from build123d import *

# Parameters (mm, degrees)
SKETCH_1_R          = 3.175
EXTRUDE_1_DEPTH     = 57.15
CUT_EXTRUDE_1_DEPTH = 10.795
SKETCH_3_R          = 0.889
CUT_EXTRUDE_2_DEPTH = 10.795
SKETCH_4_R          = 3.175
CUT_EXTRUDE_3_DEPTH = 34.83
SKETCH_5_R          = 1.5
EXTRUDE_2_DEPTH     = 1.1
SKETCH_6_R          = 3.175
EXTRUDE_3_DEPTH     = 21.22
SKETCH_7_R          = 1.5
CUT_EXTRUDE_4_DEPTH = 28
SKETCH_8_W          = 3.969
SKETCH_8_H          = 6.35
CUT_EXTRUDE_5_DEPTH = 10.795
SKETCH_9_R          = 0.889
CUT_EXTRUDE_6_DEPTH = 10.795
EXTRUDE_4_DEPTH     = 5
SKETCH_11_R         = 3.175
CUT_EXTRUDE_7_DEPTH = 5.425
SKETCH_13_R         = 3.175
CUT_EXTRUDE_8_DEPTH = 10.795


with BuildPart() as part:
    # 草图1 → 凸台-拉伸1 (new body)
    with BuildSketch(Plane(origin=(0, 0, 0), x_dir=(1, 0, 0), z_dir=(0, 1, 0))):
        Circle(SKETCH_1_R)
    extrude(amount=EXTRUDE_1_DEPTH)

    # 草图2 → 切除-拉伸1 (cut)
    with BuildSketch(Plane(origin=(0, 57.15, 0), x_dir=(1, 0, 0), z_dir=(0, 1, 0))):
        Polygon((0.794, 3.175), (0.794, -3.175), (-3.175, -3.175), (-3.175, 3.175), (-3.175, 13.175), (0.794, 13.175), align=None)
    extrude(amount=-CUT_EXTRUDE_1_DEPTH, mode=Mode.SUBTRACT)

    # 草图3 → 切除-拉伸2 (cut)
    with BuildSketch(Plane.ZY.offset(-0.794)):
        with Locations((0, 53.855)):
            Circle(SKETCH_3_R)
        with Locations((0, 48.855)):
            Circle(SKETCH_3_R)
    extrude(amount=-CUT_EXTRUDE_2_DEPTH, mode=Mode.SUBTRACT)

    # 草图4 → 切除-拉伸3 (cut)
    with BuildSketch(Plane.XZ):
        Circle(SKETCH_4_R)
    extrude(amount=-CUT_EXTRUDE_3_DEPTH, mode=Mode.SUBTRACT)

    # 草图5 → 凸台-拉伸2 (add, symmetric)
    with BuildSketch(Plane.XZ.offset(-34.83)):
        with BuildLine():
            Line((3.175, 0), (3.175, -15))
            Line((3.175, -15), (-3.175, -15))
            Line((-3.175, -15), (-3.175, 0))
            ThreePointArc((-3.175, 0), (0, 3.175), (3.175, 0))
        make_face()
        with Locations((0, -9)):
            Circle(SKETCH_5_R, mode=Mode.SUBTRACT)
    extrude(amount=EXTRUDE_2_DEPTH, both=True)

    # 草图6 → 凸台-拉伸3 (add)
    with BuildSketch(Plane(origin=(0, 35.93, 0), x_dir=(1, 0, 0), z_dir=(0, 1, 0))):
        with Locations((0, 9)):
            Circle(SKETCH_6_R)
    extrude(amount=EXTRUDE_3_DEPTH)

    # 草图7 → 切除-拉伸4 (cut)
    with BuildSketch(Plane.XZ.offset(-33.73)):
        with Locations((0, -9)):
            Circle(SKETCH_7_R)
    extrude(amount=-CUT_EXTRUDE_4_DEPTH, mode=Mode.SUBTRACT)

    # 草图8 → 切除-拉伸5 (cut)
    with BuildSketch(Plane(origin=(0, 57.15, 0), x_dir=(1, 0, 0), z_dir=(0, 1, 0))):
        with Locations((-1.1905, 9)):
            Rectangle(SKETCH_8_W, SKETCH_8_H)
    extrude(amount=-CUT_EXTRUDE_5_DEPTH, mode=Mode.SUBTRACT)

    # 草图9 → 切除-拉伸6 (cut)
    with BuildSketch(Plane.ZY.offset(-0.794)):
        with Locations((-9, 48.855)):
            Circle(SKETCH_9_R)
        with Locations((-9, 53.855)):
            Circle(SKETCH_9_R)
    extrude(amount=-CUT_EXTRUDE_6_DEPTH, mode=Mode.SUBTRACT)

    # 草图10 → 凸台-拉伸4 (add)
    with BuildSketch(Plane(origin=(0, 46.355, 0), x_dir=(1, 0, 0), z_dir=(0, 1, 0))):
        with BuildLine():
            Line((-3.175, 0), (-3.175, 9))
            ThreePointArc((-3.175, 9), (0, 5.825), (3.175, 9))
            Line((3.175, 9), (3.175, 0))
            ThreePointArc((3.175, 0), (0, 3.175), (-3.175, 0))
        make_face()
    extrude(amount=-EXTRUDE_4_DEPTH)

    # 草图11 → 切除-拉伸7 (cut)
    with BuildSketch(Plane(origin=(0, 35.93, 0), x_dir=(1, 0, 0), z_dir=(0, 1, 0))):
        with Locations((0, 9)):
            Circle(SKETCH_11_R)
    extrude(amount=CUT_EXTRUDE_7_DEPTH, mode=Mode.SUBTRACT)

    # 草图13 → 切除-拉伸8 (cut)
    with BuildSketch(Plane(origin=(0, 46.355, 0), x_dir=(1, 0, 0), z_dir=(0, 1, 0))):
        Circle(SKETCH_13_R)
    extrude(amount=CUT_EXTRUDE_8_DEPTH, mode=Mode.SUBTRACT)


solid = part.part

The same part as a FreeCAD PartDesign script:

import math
import FreeCAD as App
import Part
import Sketcher
Q = App.Units.Quantity


def add_polygon(sketch, points):
    """Adds a closed chain of lines whose ends are joined by coincident constraints."""
    first, n = sketch.GeometryCount, len(points)
    for a, b in zip(points, points[1:] + points[:1]):
        sketch.addGeometry(Part.LineSegment(App.Vector(*a, 0), App.Vector(*b, 0)), False)
    for i in range(n):
        sketch.addConstraint(Sketcher.Constraint("Coincident", first + i, 2, first + (i + 1) % n, 1))

doc = App.newDocument("Part")
body = doc.addObject("PartDesign::Body", "Body")

sketch1 = body.newObject("Sketcher::SketchObject", "Sketch")
sketch1.AttachmentSupport = (doc.getObject("XZ_Plane"), [""])
sketch1.MapMode = "FlatFace"
sketch1.addGeometry(Part.Circle(App.Vector(0, 0, 0), App.Vector(0, 0, 1), 3.2), False)
sketch1.addConstraint([
    Sketcher.Constraint("Coincident", 0, 3, -1, 1),
    Sketcher.Constraint("Diameter", 0, Q("6.35 mm")),
])
pad1 = body.newObject("PartDesign::Pad", "Pad")
pad1.Profile = sketch1
pad1.Length = 57.15
pad1.Reversed = True

sketch2 = body.newObject("Sketcher::SketchObject", "Sketch001")
sketch2.AttachmentSupport = (doc.getObject("XZ_Plane"), [""])
sketch2.MapMode = "FlatFace"
sketch2.AttachmentOffset = App.Placement(App.Vector(0, 0, -57.15), App.Rotation())
add_polygon(sketch2, [(0.8, 3.2), (0.8, -13.2), (-3.2, -13.2), (-3.2, 3.2)])
sketch2.addConstraint([
    Sketcher.Constraint("Vertical", 0),
    Sketcher.Constraint("Horizontal", 1),
    Sketcher.Constraint("Vertical", 2),
    Sketcher.Constraint("Horizontal", 3),
    Sketcher.Constraint("DistanceY", 0, 2, 0, 1, Q("16.35 mm")),
    Sketcher.Constraint("DistanceX", 1, 2, 1, 1, Q("3.969 mm")),
    Sketcher.Constraint("DistanceX", -1, 1, 0, 2, Q("0.794 mm")),
    Sketcher.Constraint("DistanceY", 0, 2, -1, 1, Q("13.175 mm")),
])
pocket1 = body.newObject("PartDesign::Pocket", "Pocket")
pocket1.Profile = sketch2
pocket1.Length = 10.795
pocket1.Reversed = True

sketch3 = body.newObject("Sketcher::SketchObject", "Sketch002")
sketch3.AttachmentSupport = (doc.getObject("YZ_Plane"), [""])
sketch3.MapMode = "FlatFace"
sketch3.AttachmentOffset = App.Placement(App.Vector(0, 0, 0.794), App.Rotation())
sketch3.addGeometry([
    Part.Circle(App.Vector(53.9, 0, 0), App.Vector(0, 0, 1), 0.9),
    Part.Circle(App.Vector(48.9, 0, 0), App.Vector(0, 0, 1), 0.9),
], False)
sketch3.addConstraint([
    Sketcher.Constraint("Equal", 0, 1),
    Sketcher.Constraint("PointOnObject", 0, 3, -1),
    Sketcher.Constraint("PointOnObject", 1, 3, -1),
    Sketcher.Constraint("Diameter", 0, Q("1.778 mm")),
    Sketcher.Constraint("DistanceX", 1, 3, 0, 3, Q("5 mm")),
    Sketcher.Constraint("DistanceX", -1, 1, 0, 3, Q("53.855 mm")),
])
pocket2 = body.newObject("PartDesign::Pocket", "Pocket001")
pocket2.Profile = sketch3
pocket2.Length = 10.795
pocket2.Reversed = True

sketch4 = body.newObject("Sketcher::SketchObject", "Sketch003")
sketch4.AttachmentSupport = (doc.getObject("XZ_Plane"), [""])
sketch4.MapMode = "FlatFace"
sketch4.addGeometry(Part.Circle(App.Vector(0, 0, 0), App.Vector(0, 0, 1), 3.2), False)
sketch4.addConstraint([
    Sketcher.Constraint("Coincident", 0, 3, -1, 1),
    Sketcher.Constraint("Diameter", 0, Q("6.35 mm")),
])
pocket3 = body.newObject("PartDesign::Pocket", "Pocket002")
pocket3.Profile = sketch4
pocket3.Length = 34.83

sketch5 = body.newObject("Sketcher::SketchObject", "Sketch004")
sketch5.AttachmentSupport = (doc.getObject("XZ_Plane"), [""])
sketch5.MapMode = "FlatFace"
sketch5.AttachmentOffset = App.Placement(App.Vector(0, 0, -34.83), App.Rotation())
sketch5.addGeometry([
    Part.LineSegment(App.Vector(3.2, -15, 0), App.Vector(3.2, 0, 0)),
    Part.ArcOfCircle(Part.Circle(App.Vector(0, 0, 0), App.Vector(0, 0, 1), 3.2), math.radians(0), math.radians(180)),
    Part.LineSegment(App.Vector(-3.2, 0, 0), App.Vector(-3.2, -15, 0)),
    Part.LineSegment(App.Vector(-3.2, -15, 0), App.Vector(3.2, -15, 0)),
    Part.Circle(App.Vector(0, -9, 0), App.Vector(0, 0, 1), 1.5),
], False)
sketch5.addConstraint([
    Sketcher.Constraint("Tangent", 0, 2, 1, 1),
    Sketcher.Constraint("Tangent", 1, 2, 2, 1),
    Sketcher.Constraint("Coincident", 2, 2, 3, 1),
    Sketcher.Constraint("Coincident", 3, 2, 0, 1),
    Sketcher.Constraint("Vertical", 0),
    Sketcher.Constraint("Vertical", 2),
    Sketcher.Constraint("Horizontal", 3),
    Sketcher.Constraint("Coincident", 1, 3, -1, 1),
    Sketcher.Constraint("PointOnObject", 4, 3, -2),
    Sketcher.Constraint("Diameter", 4, Q("3 mm")),
    Sketcher.Constraint("DistanceY", 0, 1, 0, 2, Q("15 mm")),
    Sketcher.Constraint("DistanceY", 4, 3, -1, 1, Q("9 mm")),
    Sketcher.Constraint("Radius", 1, Q("3.175 mm")),
])
pad2 = body.newObject("PartDesign::Pad", "Pad001")
pad2.Profile = sketch5
pad2.Length = 2.2
pad2.Midplane = True

sketch6 = body.newObject("Sketcher::SketchObject", "Sketch005")
sketch6.AttachmentSupport = (doc.getObject("XZ_Plane"), [""])
sketch6.MapMode = "FlatFace"
sketch6.AttachmentOffset = App.Placement(App.Vector(0, 0, -35.93), App.Rotation())
sketch6.addGeometry(Part.Circle(App.Vector(0, -9, 0), App.Vector(0, 0, 1), 3.2), False)
sketch6.addConstraint([
    Sketcher.Constraint("PointOnObject", 0, 3, -2),
    Sketcher.Constraint("Diameter", 0, Q("6.35 mm")),
    Sketcher.Constraint("DistanceY", 0, 3, -1, 1, Q("9 mm")),
])
pad3 = body.newObject("PartDesign::Pad", "Pad002")
pad3.Profile = sketch6
pad3.Length = 21.22
pad3.Reversed = True

sketch7 = body.newObject("Sketcher::SketchObject", "Sketch006")
sketch7.AttachmentSupport = (doc.getObject("XZ_Plane"), [""])
sketch7.MapMode = "FlatFace"
sketch7.AttachmentOffset = App.Placement(App.Vector(0, 0, -33.73), App.Rotation())
sketch7.addGeometry(Part.Circle(App.Vector(0, -9, 0), App.Vector(0, 0, 1), 1.5), False)
sketch7.addConstraint([
    Sketcher.Constraint("PointOnObject", 0, 3, -2),
    Sketcher.Constraint("Diameter", 0, Q("3 mm")),
    Sketcher.Constraint("DistanceY", 0, 3, -1, 1, Q("9 mm")),
])
pocket4 = body.newObject("PartDesign::Pocket", "Pocket003")
pocket4.Profile = sketch7
pocket4.Length = 28

sketch8 = body.newObject("Sketcher::SketchObject", "Sketch007")
sketch8.AttachmentSupport = (doc.getObject("XZ_Plane"), [""])
sketch8.MapMode = "FlatFace"
sketch8.AttachmentOffset = App.Placement(App.Vector(0, 0, -57.15), App.Rotation())
add_polygon(sketch8, [(-3.2, -12.2), (-3.2, -5.8), (0.8, -5.8), (0.8, -12.2)])
sketch8.addConstraint([
    Sketcher.Constraint("Vertical", 0),
    Sketcher.Constraint("Horizontal", 1),
    Sketcher.Constraint("Vertical", 2),
    Sketcher.Constraint("Horizontal", 3),
    Sketcher.Constraint("DistanceY", 0, 1, 0, 2, Q("6.35 mm")),
    Sketcher.Constraint("DistanceX", 1, 1, 1, 2, Q("3.969 mm")),
    Sketcher.Constraint("DistanceX", 0, 2, -1, 1, Q("3.175 mm")),
    Sketcher.Constraint("DistanceY", 0, 2, -1, 1, Q("5.825 mm")),
])
pocket5 = body.newObject("PartDesign::Pocket", "Pocket004")
pocket5.Profile = sketch8
pocket5.Length = 10.795
pocket5.Reversed = True

sketch9 = body.newObject("Sketcher::SketchObject", "Sketch008")
sketch9.AttachmentSupport = (doc.getObject("YZ_Plane"), [""])
sketch9.MapMode = "FlatFace"
sketch9.AttachmentOffset = App.Placement(App.Vector(0, 0, 0.794), App.Rotation())
sketch9.addGeometry([
    Part.Circle(App.Vector(48.9, -9, 0), App.Vector(0, 0, 1), 0.9),
    Part.Circle(App.Vector(53.9, -9, 0), App.Vector(0, 0, 1), 0.9),
], False)
sketch9.addConstraint([
    Sketcher.Constraint("Equal", 0, 1),
    Sketcher.Constraint("Horizontal", 0, 3, 1, 3),
    Sketcher.Constraint("Diameter", 0, Q("1.778 mm")),
    Sketcher.Constraint("DistanceY", 0, 3, -1, 1, Q("9 mm")),
    Sketcher.Constraint("DistanceX", 0, 3, 1, 3, Q("5 mm")),
    Sketcher.Constraint("DistanceX", -1, 1, 0, 3, Q("48.855 mm")),
])
pocket6 = body.newObject("PartDesign::Pocket", "Pocket005")
pocket6.Profile = sketch9
pocket6.Length = 10.795
pocket6.Reversed = True

sketch10 = body.newObject("Sketcher::SketchObject", "Sketch009")
sketch10.AttachmentSupport = (doc.getObject("XZ_Plane"), [""])
sketch10.MapMode = "FlatFace"
sketch10.AttachmentOffset = App.Placement(App.Vector(0, 0, -46.355), App.Rotation())
sketch10.addGeometry([
    Part.LineSegment(App.Vector(-3.2, -9, 0), App.Vector(-3.2, 0, 0)),
    Part.ArcOfCircle(Part.Circle(App.Vector(0, 0, 0), App.Vector(0, 0, 1), 3.2), math.radians(180), math.radians(360)),
    Part.LineSegment(App.Vector(3.2, 0, 0), App.Vector(3.2, -9, 0)),
    Part.ArcOfCircle(Part.Circle(App.Vector(0, -9, 0), App.Vector(0, 0, 1), 3.2), math.radians(0), math.radians(180)),
], False)
sketch10.addConstraint([
    Sketcher.Constraint("Tangent", 0, 2, 1, 1),
    Sketcher.Constraint("Tangent", 1, 2, 2, 1),
    Sketcher.Constraint("Tangent", 2, 2, 3, 1),
    Sketcher.Constraint("Tangent", 3, 2, 0, 1),
    Sketcher.Constraint("Vertical", 0),
    Sketcher.Constraint("Vertical", 2),
    Sketcher.Constraint("Coincident", 1, 3, -1, 1),
    Sketcher.Constraint("DistanceY", 0, 1, 0, 2, Q("9 mm")),
    Sketcher.Constraint("Radius", 1, Q("3.175 mm")),
])
pad4 = body.newObject("PartDesign::Pad", "Pad003")
pad4.Profile = sketch10
pad4.Length = 5

sketch11 = body.newObject("Sketcher::SketchObject", "Sketch010")
sketch11.AttachmentSupport = (doc.getObject("XZ_Plane"), [""])
sketch11.MapMode = "FlatFace"
sketch11.AttachmentOffset = App.Placement(App.Vector(0, 0, -35.93), App.Rotation())
sketch11.addGeometry(Part.Circle(App.Vector(0, -9, 0), App.Vector(0, 0, 1), 3.2), False)
sketch11.addConstraint([
    Sketcher.Constraint("PointOnObject", 0, 3, -2),
    Sketcher.Constraint("Diameter", 0, Q("6.35 mm")),
    Sketcher.Constraint("DistanceY", 0, 3, -1, 1, Q("9 mm")),
])
pocket7 = body.newObject("PartDesign::Pocket", "Pocket006")
pocket7.Profile = sketch11
pocket7.Length = 5.425

sketch12 = body.newObject("Sketcher::SketchObject", "Sketch011")
sketch12.AttachmentSupport = (doc.getObject("XZ_Plane"), [""])
sketch12.MapMode = "FlatFace"
sketch12.AttachmentOffset = App.Placement(App.Vector(0, 0, -46.355), App.Rotation())
sketch12.addGeometry(Part.Circle(App.Vector(0, 0, 0), App.Vector(0, 0, 1), 3.2), False)
sketch12.addConstraint([
    Sketcher.Constraint("Coincident", 0, 3, -1, 1),
    Sketcher.Constraint("Diameter", 0, Q("6.35 mm")),
])
pocket8 = body.newObject("PartDesign::Pocket", "Pocket007")
pocket8.Profile = sketch12
pocket8.Length = 10.795

doc.recompute()
